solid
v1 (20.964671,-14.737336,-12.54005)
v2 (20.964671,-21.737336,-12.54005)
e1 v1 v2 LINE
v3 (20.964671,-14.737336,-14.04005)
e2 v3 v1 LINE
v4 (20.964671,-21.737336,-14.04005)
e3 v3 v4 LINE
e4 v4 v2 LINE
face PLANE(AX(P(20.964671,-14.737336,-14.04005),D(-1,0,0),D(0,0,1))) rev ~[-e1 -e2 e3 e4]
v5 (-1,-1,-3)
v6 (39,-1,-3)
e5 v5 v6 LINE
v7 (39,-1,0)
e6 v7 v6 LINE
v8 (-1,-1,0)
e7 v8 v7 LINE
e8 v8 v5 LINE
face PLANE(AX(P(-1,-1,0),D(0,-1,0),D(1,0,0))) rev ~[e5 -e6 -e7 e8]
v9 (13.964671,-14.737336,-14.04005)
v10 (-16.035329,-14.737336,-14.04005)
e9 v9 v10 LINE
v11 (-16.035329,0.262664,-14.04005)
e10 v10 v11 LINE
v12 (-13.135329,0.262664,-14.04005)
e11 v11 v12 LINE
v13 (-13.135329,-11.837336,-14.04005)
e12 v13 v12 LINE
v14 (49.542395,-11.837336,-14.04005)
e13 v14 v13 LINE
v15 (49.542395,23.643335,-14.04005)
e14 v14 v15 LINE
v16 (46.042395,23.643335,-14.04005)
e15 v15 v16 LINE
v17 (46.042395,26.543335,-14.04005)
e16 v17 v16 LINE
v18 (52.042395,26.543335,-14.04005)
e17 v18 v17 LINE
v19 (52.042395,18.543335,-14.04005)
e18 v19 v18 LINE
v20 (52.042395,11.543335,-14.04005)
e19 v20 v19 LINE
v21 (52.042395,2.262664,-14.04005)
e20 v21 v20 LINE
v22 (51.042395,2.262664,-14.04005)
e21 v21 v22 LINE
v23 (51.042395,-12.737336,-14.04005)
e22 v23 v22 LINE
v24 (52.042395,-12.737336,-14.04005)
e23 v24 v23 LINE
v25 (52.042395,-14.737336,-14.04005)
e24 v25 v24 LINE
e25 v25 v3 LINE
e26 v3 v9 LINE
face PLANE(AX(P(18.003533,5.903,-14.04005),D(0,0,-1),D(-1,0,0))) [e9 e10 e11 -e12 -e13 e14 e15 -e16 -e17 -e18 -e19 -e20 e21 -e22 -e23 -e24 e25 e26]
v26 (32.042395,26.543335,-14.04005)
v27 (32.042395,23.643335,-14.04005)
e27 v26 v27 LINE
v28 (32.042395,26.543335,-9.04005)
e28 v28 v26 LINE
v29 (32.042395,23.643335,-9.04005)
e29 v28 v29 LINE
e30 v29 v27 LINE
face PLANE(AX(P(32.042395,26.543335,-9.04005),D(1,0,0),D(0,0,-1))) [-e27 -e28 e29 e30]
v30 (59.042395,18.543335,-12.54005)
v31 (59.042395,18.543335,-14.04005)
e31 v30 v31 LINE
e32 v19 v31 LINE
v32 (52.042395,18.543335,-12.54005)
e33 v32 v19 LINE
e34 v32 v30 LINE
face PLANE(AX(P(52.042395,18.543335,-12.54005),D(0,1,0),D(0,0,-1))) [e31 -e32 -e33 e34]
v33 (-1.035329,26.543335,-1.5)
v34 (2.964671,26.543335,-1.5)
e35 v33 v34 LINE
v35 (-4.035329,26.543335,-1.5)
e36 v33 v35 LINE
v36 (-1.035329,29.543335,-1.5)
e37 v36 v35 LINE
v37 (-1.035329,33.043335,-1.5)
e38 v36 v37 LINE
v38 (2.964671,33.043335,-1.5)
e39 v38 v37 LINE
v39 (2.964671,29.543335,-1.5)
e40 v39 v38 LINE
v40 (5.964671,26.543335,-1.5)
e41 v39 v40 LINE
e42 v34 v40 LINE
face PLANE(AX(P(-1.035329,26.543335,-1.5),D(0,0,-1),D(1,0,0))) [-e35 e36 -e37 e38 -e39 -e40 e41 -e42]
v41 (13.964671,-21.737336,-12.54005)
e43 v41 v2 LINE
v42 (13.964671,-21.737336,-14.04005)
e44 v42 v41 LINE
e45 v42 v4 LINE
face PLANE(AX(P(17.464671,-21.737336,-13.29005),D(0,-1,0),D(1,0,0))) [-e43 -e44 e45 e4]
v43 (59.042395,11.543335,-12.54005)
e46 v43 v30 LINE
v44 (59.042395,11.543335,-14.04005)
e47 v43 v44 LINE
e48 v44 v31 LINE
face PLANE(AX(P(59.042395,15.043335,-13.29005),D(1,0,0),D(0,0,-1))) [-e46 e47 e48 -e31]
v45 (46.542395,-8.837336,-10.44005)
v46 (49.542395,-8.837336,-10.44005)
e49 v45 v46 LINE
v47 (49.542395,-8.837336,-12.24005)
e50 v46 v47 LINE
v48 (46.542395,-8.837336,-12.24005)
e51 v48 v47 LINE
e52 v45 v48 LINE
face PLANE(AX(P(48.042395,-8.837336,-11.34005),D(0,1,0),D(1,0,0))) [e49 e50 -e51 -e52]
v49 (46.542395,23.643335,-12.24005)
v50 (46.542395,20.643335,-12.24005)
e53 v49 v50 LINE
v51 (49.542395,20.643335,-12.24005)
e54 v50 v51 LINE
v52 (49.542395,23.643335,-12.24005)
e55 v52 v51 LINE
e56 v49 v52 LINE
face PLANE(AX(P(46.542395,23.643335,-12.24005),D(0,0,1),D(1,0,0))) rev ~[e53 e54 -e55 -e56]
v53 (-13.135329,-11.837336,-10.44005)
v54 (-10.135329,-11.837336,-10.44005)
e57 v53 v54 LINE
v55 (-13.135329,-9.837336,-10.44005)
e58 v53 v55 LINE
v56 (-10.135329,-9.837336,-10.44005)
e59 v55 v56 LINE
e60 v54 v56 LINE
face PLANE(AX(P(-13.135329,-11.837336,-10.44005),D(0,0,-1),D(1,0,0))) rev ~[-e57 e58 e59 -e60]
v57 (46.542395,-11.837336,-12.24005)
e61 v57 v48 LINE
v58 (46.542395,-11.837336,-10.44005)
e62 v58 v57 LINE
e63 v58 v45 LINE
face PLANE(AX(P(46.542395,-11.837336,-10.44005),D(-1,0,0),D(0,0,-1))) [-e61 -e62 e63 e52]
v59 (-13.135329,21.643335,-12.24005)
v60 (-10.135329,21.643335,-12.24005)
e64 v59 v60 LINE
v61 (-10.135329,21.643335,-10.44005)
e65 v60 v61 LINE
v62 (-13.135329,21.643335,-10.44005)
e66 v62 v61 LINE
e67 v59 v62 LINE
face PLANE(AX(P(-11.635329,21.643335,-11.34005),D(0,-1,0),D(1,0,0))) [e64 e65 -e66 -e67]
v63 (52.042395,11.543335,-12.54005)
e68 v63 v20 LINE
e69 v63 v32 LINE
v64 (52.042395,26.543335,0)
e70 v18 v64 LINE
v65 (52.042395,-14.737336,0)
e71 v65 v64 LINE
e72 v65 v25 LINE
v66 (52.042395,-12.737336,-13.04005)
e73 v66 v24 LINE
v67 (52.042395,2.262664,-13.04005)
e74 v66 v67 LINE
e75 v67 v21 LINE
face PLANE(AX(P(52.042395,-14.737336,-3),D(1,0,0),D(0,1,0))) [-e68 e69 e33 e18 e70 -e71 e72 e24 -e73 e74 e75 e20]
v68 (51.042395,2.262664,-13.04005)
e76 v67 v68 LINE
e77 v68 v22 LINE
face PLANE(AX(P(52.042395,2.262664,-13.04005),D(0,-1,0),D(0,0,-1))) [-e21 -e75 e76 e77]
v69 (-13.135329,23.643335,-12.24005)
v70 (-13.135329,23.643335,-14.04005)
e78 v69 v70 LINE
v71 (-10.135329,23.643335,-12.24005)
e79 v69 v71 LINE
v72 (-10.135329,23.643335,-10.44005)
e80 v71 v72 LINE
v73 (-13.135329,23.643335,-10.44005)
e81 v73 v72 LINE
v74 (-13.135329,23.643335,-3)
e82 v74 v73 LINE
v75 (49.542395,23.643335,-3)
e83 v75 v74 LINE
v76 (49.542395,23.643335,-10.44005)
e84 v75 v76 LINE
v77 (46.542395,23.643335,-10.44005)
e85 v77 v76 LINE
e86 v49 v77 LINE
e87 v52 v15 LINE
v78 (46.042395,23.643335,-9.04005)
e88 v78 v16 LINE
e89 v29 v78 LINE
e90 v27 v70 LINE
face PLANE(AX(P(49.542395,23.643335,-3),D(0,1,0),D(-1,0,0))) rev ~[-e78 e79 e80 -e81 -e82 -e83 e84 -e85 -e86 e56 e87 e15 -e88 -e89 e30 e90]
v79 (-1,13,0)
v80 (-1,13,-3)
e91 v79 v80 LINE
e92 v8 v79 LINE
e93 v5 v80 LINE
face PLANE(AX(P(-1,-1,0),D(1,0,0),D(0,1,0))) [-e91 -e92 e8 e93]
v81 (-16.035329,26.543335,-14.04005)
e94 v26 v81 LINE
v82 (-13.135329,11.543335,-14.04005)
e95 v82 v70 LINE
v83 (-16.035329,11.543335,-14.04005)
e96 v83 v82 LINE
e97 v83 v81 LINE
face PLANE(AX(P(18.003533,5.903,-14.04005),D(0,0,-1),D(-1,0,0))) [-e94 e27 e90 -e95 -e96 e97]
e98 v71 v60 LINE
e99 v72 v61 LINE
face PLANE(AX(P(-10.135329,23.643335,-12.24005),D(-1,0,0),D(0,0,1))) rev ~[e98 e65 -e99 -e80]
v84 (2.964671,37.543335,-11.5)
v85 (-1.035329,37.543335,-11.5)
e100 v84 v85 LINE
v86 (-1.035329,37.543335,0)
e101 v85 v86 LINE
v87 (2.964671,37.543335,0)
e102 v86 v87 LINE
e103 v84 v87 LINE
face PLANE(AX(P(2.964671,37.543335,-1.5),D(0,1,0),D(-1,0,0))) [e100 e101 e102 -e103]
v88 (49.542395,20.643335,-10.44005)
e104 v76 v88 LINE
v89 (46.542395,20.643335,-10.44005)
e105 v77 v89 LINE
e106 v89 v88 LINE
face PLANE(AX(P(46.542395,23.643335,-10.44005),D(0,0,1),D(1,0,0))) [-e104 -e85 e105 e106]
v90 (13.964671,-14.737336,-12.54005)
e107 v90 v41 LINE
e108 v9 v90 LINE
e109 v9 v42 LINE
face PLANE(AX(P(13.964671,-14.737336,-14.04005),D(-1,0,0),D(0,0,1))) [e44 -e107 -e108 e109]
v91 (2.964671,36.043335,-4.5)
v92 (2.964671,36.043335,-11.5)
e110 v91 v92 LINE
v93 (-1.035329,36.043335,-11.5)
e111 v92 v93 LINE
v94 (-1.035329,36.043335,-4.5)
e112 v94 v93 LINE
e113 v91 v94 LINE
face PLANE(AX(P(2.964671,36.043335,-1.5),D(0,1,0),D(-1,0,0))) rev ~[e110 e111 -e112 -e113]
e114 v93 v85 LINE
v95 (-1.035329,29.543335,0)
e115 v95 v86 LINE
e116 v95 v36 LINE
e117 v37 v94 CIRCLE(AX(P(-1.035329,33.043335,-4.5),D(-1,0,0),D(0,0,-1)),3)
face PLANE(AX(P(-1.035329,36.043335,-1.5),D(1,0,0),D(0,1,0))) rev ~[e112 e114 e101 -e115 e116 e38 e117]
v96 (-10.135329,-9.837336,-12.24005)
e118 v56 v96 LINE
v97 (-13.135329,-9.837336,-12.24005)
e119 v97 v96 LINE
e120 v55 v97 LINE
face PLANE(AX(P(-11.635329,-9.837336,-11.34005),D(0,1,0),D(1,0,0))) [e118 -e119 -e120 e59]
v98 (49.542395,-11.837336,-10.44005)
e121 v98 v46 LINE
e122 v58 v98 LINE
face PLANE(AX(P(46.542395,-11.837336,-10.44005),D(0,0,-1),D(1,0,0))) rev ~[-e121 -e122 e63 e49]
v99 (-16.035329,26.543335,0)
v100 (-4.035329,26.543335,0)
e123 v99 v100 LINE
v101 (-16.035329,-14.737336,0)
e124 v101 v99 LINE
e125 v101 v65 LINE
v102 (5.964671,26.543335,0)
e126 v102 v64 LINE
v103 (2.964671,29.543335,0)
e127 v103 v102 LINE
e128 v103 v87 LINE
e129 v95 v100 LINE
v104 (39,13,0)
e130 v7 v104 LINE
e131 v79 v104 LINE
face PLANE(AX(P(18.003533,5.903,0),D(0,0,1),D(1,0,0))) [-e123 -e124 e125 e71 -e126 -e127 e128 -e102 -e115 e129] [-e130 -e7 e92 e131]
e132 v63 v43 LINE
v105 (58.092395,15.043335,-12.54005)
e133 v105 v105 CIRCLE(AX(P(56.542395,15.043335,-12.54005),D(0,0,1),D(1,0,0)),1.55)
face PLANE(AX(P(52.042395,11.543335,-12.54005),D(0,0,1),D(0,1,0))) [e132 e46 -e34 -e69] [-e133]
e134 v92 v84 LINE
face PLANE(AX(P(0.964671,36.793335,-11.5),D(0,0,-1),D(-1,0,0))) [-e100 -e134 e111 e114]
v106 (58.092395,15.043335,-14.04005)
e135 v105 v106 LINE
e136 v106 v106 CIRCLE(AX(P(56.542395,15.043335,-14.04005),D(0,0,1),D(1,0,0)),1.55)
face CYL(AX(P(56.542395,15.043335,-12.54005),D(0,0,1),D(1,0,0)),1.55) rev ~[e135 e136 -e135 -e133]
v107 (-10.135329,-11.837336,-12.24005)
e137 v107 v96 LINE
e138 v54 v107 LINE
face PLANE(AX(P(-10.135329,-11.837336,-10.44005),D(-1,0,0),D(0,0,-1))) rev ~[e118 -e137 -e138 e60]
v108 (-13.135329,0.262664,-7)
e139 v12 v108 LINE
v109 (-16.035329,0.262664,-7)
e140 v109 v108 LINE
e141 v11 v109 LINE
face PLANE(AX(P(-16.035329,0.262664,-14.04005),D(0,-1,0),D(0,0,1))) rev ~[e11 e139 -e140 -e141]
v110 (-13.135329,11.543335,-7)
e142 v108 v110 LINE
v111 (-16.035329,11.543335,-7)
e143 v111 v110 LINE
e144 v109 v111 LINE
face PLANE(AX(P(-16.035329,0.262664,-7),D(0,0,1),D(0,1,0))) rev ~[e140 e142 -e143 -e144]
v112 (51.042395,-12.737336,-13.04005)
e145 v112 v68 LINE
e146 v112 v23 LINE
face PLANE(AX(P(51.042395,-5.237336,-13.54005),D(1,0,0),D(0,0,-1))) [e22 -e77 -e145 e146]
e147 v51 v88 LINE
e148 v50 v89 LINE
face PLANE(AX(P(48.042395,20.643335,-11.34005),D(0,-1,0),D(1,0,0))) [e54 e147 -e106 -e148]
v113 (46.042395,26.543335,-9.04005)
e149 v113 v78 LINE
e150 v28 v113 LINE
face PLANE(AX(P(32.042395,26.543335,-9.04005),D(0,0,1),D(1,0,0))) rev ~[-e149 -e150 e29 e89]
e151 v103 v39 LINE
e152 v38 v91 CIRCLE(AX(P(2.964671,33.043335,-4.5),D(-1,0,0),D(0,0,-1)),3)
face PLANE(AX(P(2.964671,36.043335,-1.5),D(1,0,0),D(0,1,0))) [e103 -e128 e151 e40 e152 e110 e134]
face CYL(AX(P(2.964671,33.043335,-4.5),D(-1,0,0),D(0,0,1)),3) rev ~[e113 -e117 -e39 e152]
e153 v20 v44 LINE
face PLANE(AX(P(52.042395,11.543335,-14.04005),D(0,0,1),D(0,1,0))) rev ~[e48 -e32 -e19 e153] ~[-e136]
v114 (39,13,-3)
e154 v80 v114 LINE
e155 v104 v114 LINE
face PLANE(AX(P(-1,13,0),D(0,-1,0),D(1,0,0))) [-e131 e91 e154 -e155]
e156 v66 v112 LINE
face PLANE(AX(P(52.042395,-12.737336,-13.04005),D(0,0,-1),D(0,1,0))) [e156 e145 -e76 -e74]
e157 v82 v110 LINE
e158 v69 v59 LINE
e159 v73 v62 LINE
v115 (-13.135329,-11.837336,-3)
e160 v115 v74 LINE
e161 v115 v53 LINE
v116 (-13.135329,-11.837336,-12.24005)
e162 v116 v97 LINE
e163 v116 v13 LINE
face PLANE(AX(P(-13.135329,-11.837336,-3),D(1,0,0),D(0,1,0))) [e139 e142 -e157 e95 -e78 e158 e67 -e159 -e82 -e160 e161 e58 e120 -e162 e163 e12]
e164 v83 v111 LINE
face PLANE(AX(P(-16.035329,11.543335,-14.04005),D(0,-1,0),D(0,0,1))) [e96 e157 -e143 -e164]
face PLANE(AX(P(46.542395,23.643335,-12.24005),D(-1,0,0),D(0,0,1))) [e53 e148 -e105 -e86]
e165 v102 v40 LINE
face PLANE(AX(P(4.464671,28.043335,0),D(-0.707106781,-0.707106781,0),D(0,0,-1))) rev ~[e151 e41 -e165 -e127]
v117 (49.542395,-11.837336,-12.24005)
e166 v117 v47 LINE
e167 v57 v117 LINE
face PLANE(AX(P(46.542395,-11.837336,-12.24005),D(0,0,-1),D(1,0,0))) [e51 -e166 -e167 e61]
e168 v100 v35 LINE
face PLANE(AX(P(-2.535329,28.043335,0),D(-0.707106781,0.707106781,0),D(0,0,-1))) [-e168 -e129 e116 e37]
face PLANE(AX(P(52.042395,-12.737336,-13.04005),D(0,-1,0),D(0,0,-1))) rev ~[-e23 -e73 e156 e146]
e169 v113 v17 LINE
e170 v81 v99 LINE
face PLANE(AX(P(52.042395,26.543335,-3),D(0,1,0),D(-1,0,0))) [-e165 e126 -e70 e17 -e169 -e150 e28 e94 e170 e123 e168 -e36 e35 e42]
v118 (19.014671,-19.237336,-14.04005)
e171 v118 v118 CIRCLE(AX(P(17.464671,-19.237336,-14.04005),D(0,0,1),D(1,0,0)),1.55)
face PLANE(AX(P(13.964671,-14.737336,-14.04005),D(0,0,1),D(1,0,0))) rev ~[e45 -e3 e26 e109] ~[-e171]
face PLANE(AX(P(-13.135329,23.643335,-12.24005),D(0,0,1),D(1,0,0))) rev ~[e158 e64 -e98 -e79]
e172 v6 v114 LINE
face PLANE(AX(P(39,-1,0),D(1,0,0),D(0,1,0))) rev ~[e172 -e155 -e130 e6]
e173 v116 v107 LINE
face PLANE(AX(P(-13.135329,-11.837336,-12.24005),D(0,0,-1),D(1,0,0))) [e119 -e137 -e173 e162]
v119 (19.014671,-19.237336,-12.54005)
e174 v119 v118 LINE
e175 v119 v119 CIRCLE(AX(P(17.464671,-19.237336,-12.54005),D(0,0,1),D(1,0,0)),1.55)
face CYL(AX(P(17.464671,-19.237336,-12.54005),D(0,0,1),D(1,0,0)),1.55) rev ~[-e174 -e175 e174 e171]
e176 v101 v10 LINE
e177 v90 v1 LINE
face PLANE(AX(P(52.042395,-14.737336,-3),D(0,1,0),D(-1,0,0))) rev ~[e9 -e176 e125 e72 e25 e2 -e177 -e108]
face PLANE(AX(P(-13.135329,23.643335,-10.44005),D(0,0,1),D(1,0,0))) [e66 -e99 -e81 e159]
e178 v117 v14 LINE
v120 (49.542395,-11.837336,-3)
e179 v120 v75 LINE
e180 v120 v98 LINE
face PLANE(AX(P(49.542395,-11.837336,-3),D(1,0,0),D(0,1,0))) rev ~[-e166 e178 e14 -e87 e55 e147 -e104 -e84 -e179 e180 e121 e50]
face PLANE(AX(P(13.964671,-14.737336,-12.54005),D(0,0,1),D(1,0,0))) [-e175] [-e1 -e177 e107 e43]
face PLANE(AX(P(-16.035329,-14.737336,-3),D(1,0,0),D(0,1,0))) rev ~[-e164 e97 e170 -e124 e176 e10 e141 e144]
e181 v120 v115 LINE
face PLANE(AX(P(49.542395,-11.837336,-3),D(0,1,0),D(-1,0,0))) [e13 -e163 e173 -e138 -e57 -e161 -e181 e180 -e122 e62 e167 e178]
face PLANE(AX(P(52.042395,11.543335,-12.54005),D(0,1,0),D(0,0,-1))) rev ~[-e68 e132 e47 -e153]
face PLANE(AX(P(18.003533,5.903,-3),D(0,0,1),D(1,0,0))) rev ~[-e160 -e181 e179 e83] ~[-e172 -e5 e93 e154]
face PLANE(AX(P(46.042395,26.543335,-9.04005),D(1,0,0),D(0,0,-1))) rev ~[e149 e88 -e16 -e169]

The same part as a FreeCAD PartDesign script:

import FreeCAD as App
import Part
import Sketcher

V = App.Vector
Q = App.Units.Quantity


def edges_at(feature, points):
    """Names of the edges that pass closest to the given points."""
    edges = feature.Shape.Edges
    near = lambda p: min(range(len(edges)), key=lambda i: edges[i].distToShape(Part.Vertex(*p))[0])
    return sorted({f"Edge{near(p) + 1}" for p in points})

doc = App.newDocument("Part")
body = doc.addObject("PartDesign::Body", "Body")

# Sketch on XY plane
sketch1 = body.newObject("Sketcher::SketchObject", "Sketch")
sketch1.AttachmentSupport = (doc.getObject("XY_Plane"), [""])
sketch1.MapMode = "FlatFace"
sketch1.addGeometry([
    Part.LineSegment(V(-16.035329, 26.543335, 0), V(-16.035329, -14.737336, 0)),  # 0
    Part.LineSegment(V(-16.035329, -14.737336, 0), V(52.042395, -14.737336, 0)),  # 1
    Part.LineSegment(V(52.042395, -14.737336, 0), V(52.042395, 26.543335, 0)),  # 2
    Part.LineSegment(V(52.042395, 26.543335, 0), V(-16.035329, 26.543335, 0)),  # 3
    Part.LineSegment(V(39, -1, 0), V(-1, -1, 0)),  # 4
    Part.LineSegment(V(-1, -1, 0), V(-1, 13, 0)),  # 5
    Part.LineSegment(V(-1, 13, 0), V(39, 13, 0)),  # 6
    Part.LineSegment(V(39, 13, 0), V(39, -1, 0)),  # 7
], False)
sketch1.addConstraint([
    Sketcher.Constraint("Coincident", 0, 2, 1, 1),
    Sketcher.Constraint("Coincident", 1, 2, 2, 1),
    Sketcher.Constraint("Coincident", 2, 2, 3, 1),
    Sketcher.Constraint("Coincident", 3, 2, 0, 1),
    Sketcher.Constraint("Coincident", 4, 2, 5, 1),
    Sketcher.Constraint("Coincident", 5, 2, 6, 1),
    Sketcher.Constraint("Coincident", 6, 2, 7, 1),
    Sketcher.Constraint("Coincident", 7, 2, 4, 1),
    Sketcher.Constraint("Vertical", 0),
    Sketcher.Constraint("Horizontal", 1),
    Sketcher.Constraint("Vertical", 2),
    Sketcher.Constraint("Horizontal", 3),
    Sketcher.Constraint("Horizontal", 4),
    Sketcher.Constraint("Vertical", 5),
    Sketcher.Constraint("Horizontal", 6),
    Sketcher.Constraint("Vertical", 7),
    Sketcher.Constraint("DistanceX", 4, 2, 4, 1, Q("40 mm")),
    Sketcher.Constraint("DistanceY", 5, 1, 5, 2, Q("14 mm")),
    Sketcher.Constraint("DistanceX", 4, 2, -1, 1, Q("1 mm")),
    Sketcher.Constraint("DistanceY", 4, 2, -1, 1, Q("1 mm")),
    Sketcher.Constraint("DistanceY", 0, 2, 0, 1, Q("41.280671 mm")),
    Sketcher.Constraint("DistanceX", 1, 1, 1, 2, Q("68.077724 mm")),
    Sketcher.Constraint("DistanceX", 0, 2, -1, 1, Q("16.035329 mm")),
    Sketcher.Constraint("DistanceY", 0, 2, -1, 1, Q("14.737336 mm")),
])
pad1 = body.newObject("PartDesign::Pad", "Pad")
pad1.Profile = sketch1
pad1.Length = 3
pad1.Reversed = True

# Sketch on XY plane
sketch2 = body.newObject("Sketcher::SketchObject", "Sketch001")
sketch2.AttachmentSupport = (doc.getObject("XY_Plane"), [""])
sketch2.MapMode = "FlatFace"
sketch2.AttachmentOffset = App.Placement(V(0, 0, -3), App.Rotation())
sketch2.addGeometry([
    Part.LineSegment(V(52.042395, 26.543335, 0), V(52.042395, -14.737336, 0)),  # 0
    Part.LineSegment(V(52.042395, -14.737336, 0), V(-16.035329, -14.737336, 0)),  # 1
    Part.LineSegment(V(-16.035329, -14.737336, 0), V(-16.035329, 26.543335, 0)),  # 2
    Part.LineSegment(V(-16.035329, 26.543335, 0), V(52.042395, 26.543335, 0)),  # 3
    Part.LineSegment(V(-13.135329, -11.837336, 0), V(49.542395, -11.837336, 0)),  # 4
    Part.LineSegment(V(49.542395, -11.837336, 0), V(49.542395, 23.643335, 0)),  # 5
    Part.LineSegment(V(49.542395, 23.643335, 0), V(-13.135329, 23.643335, 0)),  # 6
    Part.LineSegment(V(-13.135329, 23.643335, 0), V(-13.135329, -11.837336, 0)),  # 7
], False)
sketch2.addConstraint([
    Sketcher.Constraint("Coincident", 0, 2, 1, 1),
    Sketcher.Constraint("Coincident", 1, 2, 2, 1),
    Sketcher.Constraint("Coincident", 2, 2, 3, 1),
    Sketcher.Constraint("Coincident", 3, 2, 0, 1),
    Sketcher.Constraint("Coincident", 4, 2, 5, 1),
    Sketcher.Constraint("Coincident", 5, 2, 6, 1),
    Sketcher.Constraint("Coincident", 6, 2, 7, 1),
    Sketcher.Constraint("Coincident", 7, 2, 4, 1),
    Sketcher.Constraint("Vertical", 0),
    Sketcher.Constraint("Horizontal", 1),
    Sketcher.Constraint("Vertical", 2),
    Sketcher.Constraint("Horizontal", 3),
    Sketcher.Constraint("Horizontal", 4),
    Sketcher.Constraint("Vertical", 5),
    Sketcher.Constraint("Horizontal", 6),
    Sketcher.Constraint("Vertical", 7),
    Sketcher.Constraint("DistanceX", 4, 2, 0, 2, Q("2.5 mm")),
    Sketcher.Constraint("DistanceY", 0, 2, 4, 2, Q("2.9 mm")),
    Sketcher.Constraint("DistanceY", 5, 2, 3, 2, Q("2.9 mm")),
    Sketcher.Constraint("DistanceX", 2, 2, 6, 2, Q("2.9 mm")),
    Sketcher.Constraint("DistanceY", 0, 2, 0, 1, Q("41.280671 mm")),
    Sketcher.Constraint("DistanceX", 1, 2, 1, 1, Q("68.077724 mm")),
    Sketcher.Constraint("DistanceX", 1, 2, -1, 1, Q("16.035329 mm")),
    Sketcher.Constraint("DistanceY", 0, 2, -1, 1, Q("14.737336 mm")),
])
pad2 = body.newObject("PartDesign::Pad", "Pad001")
pad2.Profile = sketch2
pad2.Length = 11.04005
pad2.Reversed = True

# Sketch on YZ plane
sketch3 = body.newObject("Sketcher::SketchObject", "Sketch002")
sketch3.AttachmentSupport = (doc.getObject("YZ_Plane"), [""])
sketch3.MapMode = "FlatFace"
sketch3.AttachmentOffset = App.Placement(V(0, 0, -16.035329), App.Rotation())
sketch3.addGeometry([
    Part.LineSegment(V(11.543335, -14.04005, 0), V(0.262664, -14.04005, 0)),
    Part.LineSegment(V(0.262664, -14.04005, 0), V(0.262664, -7, 0)),
    Part.LineSegment(V(0.262664, -7, 0), V(11.543335, -7, 0)),
    Part.LineSegment(V(11.543335, -7, 0), V(11.543335, -14.04005, 0)),
], False)
sketch3.addConstraint([
    Sketcher.Constraint("Coincident", 0, 2, 1, 1),
    Sketcher.Constraint("Coincident", 1, 2, 2, 1),
    Sketcher.Constraint("Coincident", 2, 2, 3, 1),
    Sketcher.Constraint("Coincident", 3, 2, 0, 1),
    Sketcher.Constraint("Horizontal", 0),
    Sketcher.Constraint("Vertical", 1),
    Sketcher.Constraint("Horizontal", 2),
    Sketcher.Constraint("Vertical", 3),
    Sketcher.Constraint("DistanceY", 1, 2, -1, 1, Q("7 mm")),
    Sketcher.Constraint("DistanceX", 0, 2, 0, 1, Q("11.280671 mm")),
    Sketcher.Constraint("DistanceY", 1, 1, 1, 2, Q("7.04005 mm")),
    Sketcher.Constraint("DistanceX", -1, 1, 0, 2, Q("0.262664 mm")),
])
pocket1 = body.newObject("PartDesign::Pocket", "Pocket")
pocket1.Profile = sketch3
pocket1.Length = 2.9
pocket1.Reversed = True

# Sketch on XZ plane
sketch4 = body.newObject("Sketcher::SketchObject", "Sketch003")
sketch4.AttachmentSupport = (doc.getObject("XZ_Plane"), [""])
sketch4.MapMode = "FlatFace"
sketch4.AttachmentOffset = App.Placement(V(0, 0, -23.643335), App.Rotation())
sketch4.addGeometry([
    Part.LineSegment(V(46.542395, -10.44005, 0), V(46.542395, -12.24005, 0)),
    Part.LineSegment(V(46.542395, -12.24005, 0), V(49.542395, -12.24005, 0)),
    Part.LineSegment(V(49.542395, -12.24005, 0), V(49.542395, -10.44005, 0)),
    Part.LineSegment(V(49.542395, -10.44005, 0), V(46.542395, -10.44005, 0)),
], False)
sketch4.addConstraint([
    Sketcher.Constraint("Coincident", 0, 2, 1, 1),
    Sketcher.Constraint("Coincident", 1, 2, 2, 1),
    Sketcher.Constraint("Coincident", 2, 2, 3, 1),
    Sketcher.Constraint("Coincident", 3, 2, 0, 1),
    Sketcher.Constraint("Vertical", 0),
    Sketcher.Constraint("Horizontal", 1),
    Sketcher.Constraint("Vertical", 2),
    Sketcher.Constraint("Horizontal", 3),
    Sketcher.Constraint("DistanceX", 1, 1, 1, 2, Q("3 mm")),
    Sketcher.Constraint("DistanceY", 0, 2, 0, 1, Q("1.8 mm")),
    Sketcher.Constraint("DistanceY", 0, 2, -1, 1, Q("12.24005 mm")),
    Sketcher.Constraint("DistanceX", -1, 1, 0, 2, Q("46.542395 mm")),
])
pad3 = body.newObject("PartDesign::Pad", "Pad002")
pad3.Profile = sketch4
pad3.Length = 3

# Sketch on XZ plane
sketch5 = body.newObject("Sketcher::SketchObject", "Sketch004")
sketch5.AttachmentSupport = (doc.getObject("XZ_Plane"), [""])
sketch5.MapMode = "FlatFace"
sketch5.AttachmentOffset = App.Placement(V(0, 0, 11.837336), App.Rotation())
sketch5.addGeometry([
    Part.LineSegment(V(46.542395, -12.24005, 0), V(46.542395, -10.44005, 0)),
    Part.LineSegment(V(46.542395, -10.44005, 0), V(49.542395, -10.44005, 0)),
    Part.LineSegment(V(49.542395, -10.44005, 0), V(49.542395, -12.24005, 0)),
    Part.LineSegment(V(49.542395, -12.24005, 0), V(46.542395, -12.24005, 0)),
], False)
sketch5.addConstraint([
    Sketcher.Constraint("Coincident", 0, 2, 1, 1),
    Sketcher.Constraint("Coincident", 1, 2, 2, 1),
    Sketcher.Constraint("Coincident", 2, 2, 3, 1),
    Sketcher.Constraint("Coincident", 3, 2, 0, 1),
    Sketcher.Constraint("Vertical", 0),
    Sketcher.Constraint("Horizontal", 1),
    Sketcher.Constraint("Vertical", 2),
    Sketcher.Constraint("Horizontal", 3),
    Sketcher.Constraint("DistanceX", 1, 1, 1, 2, Q("3 mm")),
    Sketcher.Constraint("DistanceY", 0, 1, 0, 2, Q("1.8 mm")),
    Sketcher.Constraint("DistanceY", 0, 2, -1, 1, Q("10.44005 mm")),
    Sketcher.Constraint("DistanceX", -1, 1, 0, 2, Q("46.542395 mm")),
])
pad4 = body.newObject("PartDesign::Pad", "Pad003")
pad4.Profile = sketch5
pad4.Length = 3
pad4.Reversed = True

# Sketch on XZ plane
sketch6 = body.newObject("Sketcher::SketchObject", "Sketch005")
sketch6.AttachmentSupport = (doc.getObject("XZ_Plane"), [""])
sketch6.MapMode = "FlatFace"
sketch6.AttachmentOffset = App.Placement(V(0, 0, -23.643335), App.Rotation())
sketch6.addGeometry([
    Part.LineSegment(V(-13.135329, -10.44005, 0), V(-13.135329, -12.24005, 0)),
    Part.LineSegment(V(-13.135329, -12.24005, 0), V(-10.135329, -12.24005, 0)),
    Part.LineSegment(V(-10.135329, -12.24005, 0), V(-10.135329, -10.44005, 0)),
    Part.LineSegment(V(-10.135329, -10.44005, 0), V(-13.135329, -10.44005, 0)),
], False)
sketch6.addConstraint([
    Sketcher.Constraint("Coincident", 0, 2, 1, 1),
    Sketcher.Constraint("Coincident", 1, 2, 2, 1),
    Sketcher.Constraint("Coincident", 2, 2, 3, 1),
    Sketcher.Constraint("Coincident", 3, 2, 0, 1),
    Sketcher.Constraint("Vertical", 0),
    Sketcher.Constraint("Horizontal", 1),
    Sketcher.Constraint("Vertical", 2),
    Sketcher.Constraint("Horizontal", 3),
    Sketcher.Constraint("DistanceX", 1, 1, 1, 2, Q("3 mm")),
    Sketcher.Constraint("DistanceY", 0, 2, 0, 1, Q("1.8 mm")),
    Sketcher.Constraint("DistanceX", 0, 2, -1, 1, Q("13.135329 mm")),
    Sketcher.Constraint("DistanceY", 0, 2, -1, 1, Q("12.24005 mm")),
])
pad5 = body.newObject("PartDesign::Pad", "Pad004")
pad5.Profile = sketch6
pad5.Length = 2

# Sketch on XZ plane
sketch7 = body.newObject("Sketcher::SketchObject", "Sketch006")
sketch7.AttachmentSupport = (doc.getObject("XZ_Plane"), [""])
sketch7.MapMode = "FlatFace"
sketch7.AttachmentOffset = App.Placement(V(0, 0, 11.837336), App.Rotation())
sketch7.addGeometry([
    Part.LineSegment(V(-13.135329, -12.24005, 0), V(-13.135329, -10.44005, 0)),
    Part.LineSegment(V(-13.135329, -10.44005, 0), V(-10.135329, -10.44005, 0)),
    Part.LineSegment(V(-10.135329, -10.44005, 0), V(-10.135329, -12.24005, 0)),
    Part.LineSegment(V(-10.135329, -12.24005, 0), V(-13.135329, -12.24005, 0)),
], False)
sketch7.addConstraint([
    Sketcher.Constraint("Coincident", 0, 2, 1, 1),
    Sketcher.Constraint("Coincident", 1, 2, 2, 1),
    Sketcher.Constraint("Coincident", 2, 2, 3, 1),
    Sketcher.Constraint("Coincident", 3, 2, 0, 1),
    Sketcher.Constraint("Vertical", 0),
    Sketcher.Constraint("Horizontal", 1),
    Sketcher.Constraint("Vertical", 2),
    Sketcher.Constraint("Horizontal", 3),
    Sketcher.Constraint("DistanceX", 1, 1, 1, 2, Q("3 mm")),
    Sketcher.Constraint("DistanceY", 0, 1, 0, 2, Q("1.8 mm")),
    Sketcher.Constraint("DistanceX", 0, 2, -1, 1, Q("13.135329 mm")),
    Sketcher.Constraint("DistanceY", 0, 2, -1, 1, Q("10.44005 mm")),
])
pad6 = body.newObject("PartDesign::Pad", "Pad005")
pad6.Profile = sketch7
pad6.Length = 2
pad6.Reversed = True

# Sketch on XZ plane
sketch8 = body.newObject("Sketcher::SketchObject", "Sketch007")
sketch8.AttachmentSupport = (doc.getObject("XZ_Plane"), [""])
sketch8.MapMode = "FlatFace"
sketch8.AttachmentOffset = App.Placement(V(0, 0, -26.543335), App.Rotation())
sketch8.addGeometry([
    Part.LineSegment(V(32.042395, -14.04005, 0), V(32.042395, -9.04005, 0)),
    Part.LineSegment(V(32.042395, -9.04005, 0), V(46.042395, -9.04005, 0)),
    Part.LineSegment(V(46.042395, -9.04005, 0), V(46.042395, -14.04005, 0)),
    Part.LineSegment(V(46.042395, -14.04005, 0), V(32.042395, -14.04005, 0)),
], False)
sketch8.addConstraint([
    Sketcher.Constraint("Coincident", 0, 2, 1, 1),
    Sketcher.Constraint("Coincident", 1, 2, 2, 1),
    Sketcher.Constraint("Coincident", 2, 2, 3, 1),
    Sketcher.Constraint("Coincident", 3, 2, 0, 1),
    Sketcher.Constraint("Vertical", 0),
    Sketcher.Constraint("Horizontal", 1),
    Sketcher.Constraint("Vertical", 2),
    Sketcher.Constraint("Horizontal", 3),
    Sketcher.Constraint("DistanceX", 1, 1, 1, 2, Q("14 mm")),
    Sketcher.Constraint("DistanceY", 0, 1, 0, 2, Q("5 mm")),
    Sketcher.Constraint("DistanceY", 0, 2, -1, 1, Q("9.04005 mm")),
    Sketcher.Constraint("DistanceX", -1, 1, 0, 2, Q("32.042395 mm")),
])
pocket2 = body.newObject("PartDesign::Pocket", "Pocket001")
pocket2.Profile = sketch8
pocket2.Length = 2.9
pocket2.Reversed = True

# Sketch on YZ plane
sketch9 = body.newObject("Sketcher::SketchObject", "Sketch008")
sketch9.AttachmentSupport = (doc.getObject("YZ_Plane"), [""])
sketch9.MapMode = "FlatFace"
sketch9.AttachmentOffset = App.Placement(V(0, 0, 52.042395), App.Rotation())
sketch9.addGeometry([
    Part.LineSegment(V(2.262664, -13.04005, 0), V(-12.737336, -13.04005, 0)),
    Part.LineSegment(V(-12.737336, -13.04005, 0), V(-12.737336, -14.04005, 0)),
    Part.LineSegment(V(-12.737336, -14.04005, 0), V(2.262664, -14.04005, 0)),
    Part.LineSegment(V(2.262664, -14.04005, 0), V(2.262664, -13.04005, 0)),
], False)
sketch9.addConstraint([
    Sketcher.Constraint("Coincident", 0, 2, 1, 1),
    Sketcher.Constraint("Coincident", 1, 2, 2, 1),
    Sketcher.Constraint("Coincident", 2, 2, 3, 1),
    Sketcher.Constraint("Coincident", 3, 2, 0, 1),
    Sketcher.Constraint("Horizontal", 0),
    Sketcher.Constraint("Vertical", 1),
    Sketcher.Constraint("Horizontal", 2),
    Sketcher.Constraint("Vertical", 3),
    Sketcher.Constraint("DistanceX", 0, 2, 0, 1, Q("15 mm")),
    Sketcher.Constraint("DistanceY", 1, 2, 1, 1, Q("1 mm")),
    Sketcher.Constraint("DistanceY", 0, 2, -1, 1, Q("13.04005 mm")),
    Sketcher.Constraint("DistanceX", 0, 2, -1, 1, Q("12.737336 mm")),
])
pocket3 = body.newObject("PartDesign::Pocket", "Pocket002")
pocket3.Profile = sketch9
pocket3.Length = 1

# Sketch on YZ plane
sketch10 = body.newObject("Sketcher::SketchObject", "Sketch009")
sketch10.AttachmentSupport = (doc.getObject("YZ_Plane"), [""])
sketch10.MapMode = "FlatFace"
sketch10.AttachmentOffset = App.Placement(V(0, 0, 52.042395), App.Rotation())
sketch10.addGeometry([
    Part.LineSegment(V(18.543335, -12.54005, 0), V(11.543335, -12.54005, 0)),
    Part.LineSegment(V(11.543335, -12.54005, 0), V(11.543335, -14.04005, 0)),
    Part.LineSegment(V(11.543335, -14.04005, 0), V(18.543335, -14.04005, 0)),
    Part.LineSegment(V(18.543335, -14.04005, 0), V(18.543335, -12.54005, 0)),
], False)
sketch10.addConstraint([
    Sketcher.Constraint("Coincident", 0, 2, 1, 1),
    Sketcher.Constraint("Coincident", 1, 2, 2, 1),
    Sketcher.Constraint("Coincident", 2, 2, 3, 1),
    Sketcher.Constraint("Coincident", 3, 2, 0, 1),
    Sketcher.Constraint("Horizontal", 0),
    Sketcher.Constraint("Vertical", 1),
    Sketcher.Constraint("Horizontal", 2),
    Sketcher.Constraint("Vertical", 3),
    Sketcher.Constraint("DistanceX", 0, 2, 0, 1, Q("7 mm")),
    Sketcher.Constraint("DistanceY", 1, 2, 1, 1, Q("1.5 mm")),
    Sketcher.Constraint("DistanceY", 0, 2, -1, 1, Q("12.54005 mm")),
    Sketcher.Constraint("DistanceX", -1, 1, 0, 2, Q("11.543335 mm")),
])
pad7 = body.newObject("PartDesign::Pad", "Pad006")
pad7.Profile = sketch10
pad7.Length = 7

# Sketch on XY plane
sketch11 = body.newObject("Sketcher::SketchObject", "Sketch010")
sketch11.AttachmentSupport = (doc.getObject("XY_Plane"), [""])
sketch11.MapMode = "FlatFace"
sketch11.AttachmentOffset = App.Placement(V(0, 0, -12.54005), App.Rotation())
sketch11.addGeometry(Part.Circle(V(56.542395, 15.043335, 0), V(0, 0, 1), 1.55), False)
sketch11.addConstraint([
    Sketcher.Constraint("Diameter", 0, Q("3.1 mm")),
    Sketcher.Constraint("DistanceX", -1, 1, 0, 3, Q("56.542395 mm")),
    Sketcher.Constraint("DistanceY", -1, 1, 0, 3, Q("15.043335 mm")),
])
pocket4 = body.newObject("PartDesign::Pocket", "Pocket003")
pocket4.Profile = sketch11
pocket4.Type = "ThroughAll"

# Sketch on XZ plane
sketch12 = body.newObject("Sketcher::SketchObject", "Sketch011")
sketch12.AttachmentSupport = (doc.getObject("XZ_Plane"), [""])
sketch12.MapMode = "FlatFace"
sketch12.AttachmentOffset = App.Placement(V(0, 0, -26.543335), App.Rotation())
sketch12.addGeometry([
    Part.LineSegment(V(-1.035329, -1.5, 0), V(-1.035329, 0, 0)),
    Part.LineSegment(V(-1.035329, 0, 0), V(2.964671, 0, 0)),
    Part.LineSegment(V(2.964671, 0, 0), V(2.964671, -1.5, 0)),
    Part.LineSegment(V(2.964671, -1.5, 0), V(-1.035329, -1.5, 0)),
], False)
sketch12.addConstraint([
    Sketcher.Constraint("Coincident", 0, 2, 1, 1),
    Sketcher.Constraint("Coincident", 1, 2, 2, 1),
    Sketcher.Constraint("Coincident", 2, 2, 3, 1),
    Sketcher.Constraint("Coincident", 3, 2, 0, 1),
    Sketcher.Constraint("Vertical", 0),
    Sketcher.Constraint("Horizontal", 1),
    Sketcher.Constraint("Vertical", 2),
    Sketcher.Constraint("Horizontal", 3),
    Sketcher.Constraint("PointOnObject", 0, 2, -1),
    Sketcher.Constraint("DistanceX", 1, 1, 1, 2, Q("4 mm")),
    Sketcher.Constraint("DistanceY", 0, 1, 0, 2, Q("1.5 mm")),
    Sketcher.Constraint("DistanceX", 0, 2, -1, 1, Q("1.035329 mm")),
])
pad8 = body.newObject("PartDesign::Pad", "Pad007")
pad8.Profile = sketch12
pad8.Length = 11
pad8.Reversed = True

# Sketch on XY plane
sketch13 = body.newObject("Sketcher::SketchObject", "Sketch012")
sketch13.AttachmentSupport = (doc.getObject("XY_Plane"), [""])
sketch13.MapMode = "FlatFace"
sketch13.AttachmentOffset = App.Placement(V(0, 0, -1.5), App.Rotation())
sketch13.addGeometry([
    Part.LineSegment(V(2.964671, 37.543335, 0), V(2.964671, 36.043335, 0)),
    Part.LineSegment(V(2.964671, 36.043335, 0), V(-1.035329, 36.043335, 0)),
    Part.LineSegment(V(-1.035329, 36.043335, 0), V(-1.035329, 37.543335, 0)),
    Part.LineSegment(V(-1.035329, 37.543335, 0), V(2.964671, 37.543335, 0)),
], False)
sketch13.addConstraint([
    Sketcher.Constraint("Coincident", 0, 2, 1, 1),
    Sketcher.Constraint("Coincident", 1, 2, 2, 1),
    Sketcher.Constraint("Coincident", 2, 2, 3, 1),
    Sketcher.Constraint("Coincident", 3, 2, 0, 1),
    Sketcher.Constraint("Vertical", 0),
    Sketcher.Constraint("Horizontal", 1),
    Sketcher.Constraint("Vertical", 2),
    Sketcher.Constraint("Horizontal", 3),
    Sketcher.Constraint("DistanceX", 1, 2, 1, 1, Q("4 mm")),
    Sketcher.Constraint("DistanceY", 0, 2, 0, 1, Q("1.5 mm")),
    Sketcher.Constraint("DistanceX", -1, 1, 0, 2, Q("2.964671 mm")),
    Sketcher.Constraint("DistanceY", -1, 1, 0, 2, Q("36.043335 mm")),
])
pad9 = body.newObject("PartDesign::Pad", "Pad008")
pad9.Profile = sketch13
pad9.Length = 10
pad9.Reversed = True
doc.recompute()

chamfer = body.newObject("PartDesign::Chamfer", "Chamfer")
chamfer.Base = (pad9, edges_at(pad9, [(2.965, 26.543, -0.75), (-1.035, 26.543, -0.75)]))
chamfer.Size = 3
doc.recompute()

fillet = body.newObject("PartDesign::Fillet", "Fillet")
fillet.Base = (chamfer, edges_at(chamfer, [(0.965, 36.043, -1.5)]))
fillet.Radius = 3

# Sketch on XZ plane
sketch14 = body.newObject("Sketcher::SketchObject", "Sketch013")
sketch14.AttachmentSupport = (doc.getObject("XZ_Plane"), [""])
sketch14.MapMode = "FlatFace"
sketch14.AttachmentOffset = App.Placement(V(0, 0, 14.737336), App.Rotation())
sketch14.addGeometry([
    Part.LineSegment(V(13.964671, -12.54005, 0), V(13.964671, -14.04005, 0)),
    Part.LineSegment(V(13.964671, -14.04005, 0), V(20.964671, -14.04005, 0)),
    Part.LineSegment(V(20.964671, -14.04005, 0), V(20.964671, -12.54005, 0)),
    Part.LineSegment(V(20.964671, -12.54005, 0), V(13.964671, -12.54005, 0)),
], False)
sketch14.addConstraint([
    Sketcher.Constraint("Coincident", 0, 2, 1, 1),
    Sketcher.Constraint("Coincident", 1, 2, 2, 1),
    Sketcher.Constraint("Coincident", 2, 2, 3, 1),
    Sketcher.Constraint("Coincident", 3, 2, 0, 1),
    Sketcher.Constraint("Vertical", 0),
    Sketcher.Constraint("Horizontal", 1),
    Sketcher.Constraint("Vertical", 2),
    Sketcher.Constraint("Horizontal", 3),
    Sketcher.Constraint("DistanceX", 1, 1, 1, 2, Q("7 mm")),
    Sketcher.Constraint("DistanceY", 0, 2, 0, 1, Q("1.5 mm")),
    Sketcher.Constraint("DistanceX", -1, 1, 0, 2, Q("13.964671 mm")),
    Sketcher.Constraint("DistanceY", 0, 2, -1, 1, Q("14.04005 mm")),
])
pad10 = body.newObject("PartDesign::Pad", "Pad009")
pad10.Profile = sketch14
pad10.Length = 7

# Sketch on XY plane
sketch15 = body.newObject("Sketcher::SketchObject", "Sketch014")
sketch15.AttachmentSupport = (doc.getObject("XY_Plane"), [""])
sketch15.MapMode = "FlatFace"
sketch15.AttachmentOffset = App.Placement(V(0, 0, -12.54005), App.Rotation())
sketch15.addGeometry(Part.Circle(V(17.464671, -19.237336, 0), V(0, 0, 1), 1.55), False)
sketch15.addConstraint([
    Sketcher.Constraint("Diameter", 0, Q("3.1 mm")),
    Sketcher.Constraint("DistanceX", -1, 1, 0, 3, Q("17.464671 mm")),
    Sketcher.Constraint("DistanceY", 0, 3, -1, 1, Q("19.237336 mm")),
])
pocket5 = body.newObject("PartDesign::Pocket", "Pocket004")
pocket5.Profile = sketch15
pocket5.Type = "ThroughAll"

doc.recompute()
